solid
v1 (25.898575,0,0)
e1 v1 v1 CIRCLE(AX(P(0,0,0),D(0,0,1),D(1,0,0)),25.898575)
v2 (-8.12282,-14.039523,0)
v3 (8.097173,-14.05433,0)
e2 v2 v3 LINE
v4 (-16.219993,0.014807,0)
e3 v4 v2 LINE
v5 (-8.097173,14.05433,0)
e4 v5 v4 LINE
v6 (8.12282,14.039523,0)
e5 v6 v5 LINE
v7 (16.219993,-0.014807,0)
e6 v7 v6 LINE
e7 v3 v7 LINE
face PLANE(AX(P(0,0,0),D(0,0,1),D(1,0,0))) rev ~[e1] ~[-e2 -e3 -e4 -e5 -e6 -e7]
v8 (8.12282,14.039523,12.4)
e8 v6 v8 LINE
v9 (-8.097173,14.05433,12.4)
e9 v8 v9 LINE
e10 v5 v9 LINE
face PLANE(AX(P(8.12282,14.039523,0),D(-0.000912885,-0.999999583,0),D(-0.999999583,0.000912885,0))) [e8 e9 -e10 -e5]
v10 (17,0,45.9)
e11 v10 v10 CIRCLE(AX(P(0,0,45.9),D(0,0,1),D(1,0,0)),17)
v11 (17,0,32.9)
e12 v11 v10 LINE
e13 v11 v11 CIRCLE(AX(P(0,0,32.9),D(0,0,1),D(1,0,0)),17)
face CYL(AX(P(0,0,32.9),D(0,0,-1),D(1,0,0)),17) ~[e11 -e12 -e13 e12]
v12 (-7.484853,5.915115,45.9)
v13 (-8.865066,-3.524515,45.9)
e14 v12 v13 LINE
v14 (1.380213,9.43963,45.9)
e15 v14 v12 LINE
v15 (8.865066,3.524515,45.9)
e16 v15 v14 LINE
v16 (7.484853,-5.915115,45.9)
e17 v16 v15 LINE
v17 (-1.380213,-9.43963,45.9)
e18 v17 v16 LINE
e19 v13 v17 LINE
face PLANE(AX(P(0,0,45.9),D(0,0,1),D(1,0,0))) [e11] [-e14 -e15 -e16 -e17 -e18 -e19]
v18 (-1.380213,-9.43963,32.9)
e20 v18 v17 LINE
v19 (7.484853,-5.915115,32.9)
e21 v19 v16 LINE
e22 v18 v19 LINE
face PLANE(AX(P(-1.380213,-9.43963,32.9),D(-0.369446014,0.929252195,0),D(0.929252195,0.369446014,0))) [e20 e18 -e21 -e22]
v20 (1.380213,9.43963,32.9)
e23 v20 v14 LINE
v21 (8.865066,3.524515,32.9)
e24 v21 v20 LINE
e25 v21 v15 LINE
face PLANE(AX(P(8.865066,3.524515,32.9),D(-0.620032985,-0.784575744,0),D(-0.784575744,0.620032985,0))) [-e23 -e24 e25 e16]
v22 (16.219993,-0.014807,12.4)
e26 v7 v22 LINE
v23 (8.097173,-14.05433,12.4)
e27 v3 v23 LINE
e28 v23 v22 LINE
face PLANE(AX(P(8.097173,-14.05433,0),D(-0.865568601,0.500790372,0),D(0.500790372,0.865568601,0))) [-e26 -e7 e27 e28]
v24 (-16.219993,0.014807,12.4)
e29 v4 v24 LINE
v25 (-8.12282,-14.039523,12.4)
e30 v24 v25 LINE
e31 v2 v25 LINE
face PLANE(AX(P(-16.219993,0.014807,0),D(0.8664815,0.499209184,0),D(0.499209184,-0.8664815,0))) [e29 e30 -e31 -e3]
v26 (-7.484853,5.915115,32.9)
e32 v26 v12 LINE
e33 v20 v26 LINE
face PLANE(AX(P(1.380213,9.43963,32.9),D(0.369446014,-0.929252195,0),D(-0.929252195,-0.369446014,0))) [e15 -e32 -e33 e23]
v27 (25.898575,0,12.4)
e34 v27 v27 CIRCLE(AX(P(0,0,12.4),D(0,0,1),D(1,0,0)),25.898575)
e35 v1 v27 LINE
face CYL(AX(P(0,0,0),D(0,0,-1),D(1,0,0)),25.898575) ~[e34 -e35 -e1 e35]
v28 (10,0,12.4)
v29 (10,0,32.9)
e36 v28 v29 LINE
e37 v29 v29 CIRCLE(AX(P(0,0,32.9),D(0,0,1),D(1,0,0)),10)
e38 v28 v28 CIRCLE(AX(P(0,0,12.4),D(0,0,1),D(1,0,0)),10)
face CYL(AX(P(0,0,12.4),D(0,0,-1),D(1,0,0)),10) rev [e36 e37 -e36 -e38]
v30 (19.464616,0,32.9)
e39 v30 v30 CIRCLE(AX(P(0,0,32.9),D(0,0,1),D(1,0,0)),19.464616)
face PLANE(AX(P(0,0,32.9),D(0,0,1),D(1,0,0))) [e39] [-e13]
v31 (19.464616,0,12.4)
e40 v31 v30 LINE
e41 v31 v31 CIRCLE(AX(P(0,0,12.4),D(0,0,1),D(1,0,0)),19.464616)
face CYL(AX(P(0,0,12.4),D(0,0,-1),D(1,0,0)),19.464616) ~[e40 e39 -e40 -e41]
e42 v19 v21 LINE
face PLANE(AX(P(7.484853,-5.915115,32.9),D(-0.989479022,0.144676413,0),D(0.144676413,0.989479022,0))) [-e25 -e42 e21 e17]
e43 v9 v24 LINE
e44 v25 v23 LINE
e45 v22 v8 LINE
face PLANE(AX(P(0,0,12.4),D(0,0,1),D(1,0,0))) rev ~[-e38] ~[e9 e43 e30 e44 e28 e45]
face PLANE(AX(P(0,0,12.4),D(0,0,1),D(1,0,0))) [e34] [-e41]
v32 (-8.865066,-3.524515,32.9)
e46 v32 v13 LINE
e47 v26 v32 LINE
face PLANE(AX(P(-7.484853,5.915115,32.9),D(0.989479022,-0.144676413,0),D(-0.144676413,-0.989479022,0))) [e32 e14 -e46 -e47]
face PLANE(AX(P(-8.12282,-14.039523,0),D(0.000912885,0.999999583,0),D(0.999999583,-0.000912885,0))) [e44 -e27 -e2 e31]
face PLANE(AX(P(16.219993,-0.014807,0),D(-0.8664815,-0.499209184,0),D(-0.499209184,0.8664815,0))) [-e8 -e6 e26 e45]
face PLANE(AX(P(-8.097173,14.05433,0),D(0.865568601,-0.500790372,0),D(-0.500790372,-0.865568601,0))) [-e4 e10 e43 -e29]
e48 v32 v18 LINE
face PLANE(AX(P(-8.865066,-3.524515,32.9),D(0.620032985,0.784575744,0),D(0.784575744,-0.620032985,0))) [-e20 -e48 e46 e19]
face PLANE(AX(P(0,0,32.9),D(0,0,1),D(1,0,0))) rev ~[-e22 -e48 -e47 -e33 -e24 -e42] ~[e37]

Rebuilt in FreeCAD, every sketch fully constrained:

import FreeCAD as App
import Part
import Sketcher
from FreeCAD import Vector
Q = App.Units.Quantity


def add_polygon(sketch, points):
    """Adds a closed chain of lines whose ends are joined by coincident constraints."""
    first, n = sketch.GeometryCount, len(points)
    for a, b in zip(points, points[1:] + points[:1]):
        sketch.addGeometry(Part.LineSegment(App.Vector(*a, 0), App.Vector(*b, 0)), False)
    for i in range(n):
        sketch.addConstraint(Sketcher.Constraint("Coincident", first + i, 2, first + (i + 1) % n, 1))

doc = App.newDocument("Part")
body = doc.addObject("PartDesign::Body", "Body")

# Sketch on XY plane
sketch1 = body.newObject("Sketcher::SketchObject", "Sketch")
sketch1.AttachmentSupport = (doc.getObject("XY_Plane"), [""])
sketch1.MapMode = "FlatFace"
sketch1.addGeometry(Part.Circle(Vector(0, 0, 0), Vector(0, 0, 1), 26), False)  # 0
add_polygon(sketch1, [(-8, 14), (8, 14), (16, 0), (8, -14), (-8, -14), (-16, 0)])  # lines 1-6
sketch1.addConstraint([
    Sketcher.Constraint("Coincident", 0, 3, -1, 1),
    Sketcher.Constraint("Symmetric", 1, 2, 4, 2, -1, 1),
    Sketcher.Constraint("Symmetric", 2, 2, 5, 2, -1, 1),
    Sketcher.Constraint("Symmetric", 3, 2, 6, 2, -1, 1),
    Sketcher.Constraint("Equal", 1, 2),
    Sketcher.Constraint("Equal", 2, 3),
    Sketcher.Constraint("Distance", 1, Q("16.22 mm")),
    Sketcher.Constraint("Diameter", 0, Q("51.79715 mm")),
    Sketcher.Constraint("DistanceX", -1, 1, 1, 2, Q("8.12282 mm")),
    Sketcher.Constraint("DistanceY", 3, 2, -1, 1, Q("14.05433 mm")),
    Sketcher.Constraint("DistanceY", 2, 2, 1, 2, Q("14.05433 mm")),
])
pad1 = body.newObject("PartDesign::Pad", "Pad")
pad1.Profile = sketch1
pad1.Length = 12.4

# Sketch on XY plane
sketch2 = body.newObject("Sketcher::SketchObject", "Sketch001")
sketch2.AttachmentSupport = (doc.getObject("XY_Plane"), [""])
sketch2.MapMode = "FlatFace"
sketch2.AttachmentOffset = App.Placement(Vector(0, 0, 12.4), App.Rotation())
sketch2.addGeometry([
    Part.Circle(Vector(0, 0, 0), Vector(0, 0, 1), 19),
    Part.Circle(Vector(0, 0, 0), Vector(0, 0, 1), 10),
], False)
sketch2.addConstraint([
    Sketcher.Constraint("Coincident", 0, 3, -1, 1),
    Sketcher.Constraint("Coincident", 1, 3, -1, 1),
    Sketcher.Constraint("Diameter", 1, Q("20 mm")),
    Sketcher.Constraint("Diameter", 0, Q("38.929232 mm")),
])
pad2 = body.newObject("PartDesign::Pad", "Pad001")
pad2.Profile = sketch2
pad2.Length = 20.5

# Sketch on XY plane
sketch3 = body.newObject("Sketcher::SketchObject", "Sketch002")
sketch3.AttachmentSupport = (doc.getObject("XY_Plane"), [""])
sketch3.MapMode = "FlatFace"
sketch3.AttachmentOffset = App.Placement(Vector(0, 0, 32.9), App.Rotation())
sketch3.addGeometry(Part.Circle(Vector(0, 0, 0), Vector(0, 0, 1), 17), False)  # 0
add_polygon(sketch3, [(-9, -4), (-7, 6), (1, 9), (9, 4), (7, -6), (-1, -9)])  # lines 1-6
sketch3.addConstraint([
    Sketcher.Constraint("Coincident", 0, 3, -1, 1),
    Sketcher.Constraint("Symmetric", 1, 2, 4, 2, -1, 1),
    Sketcher.Constraint("Symmetric", 2, 2, 5, 2, -1, 1),
    Sketcher.Constraint("Symmetric", 3, 2, 6, 2, -1, 1),
    Sketcher.Constraint("Equal", 1, 2),
    Sketcher.Constraint("Equal", 2, 3),
    Sketcher.Constraint("Diameter", 0, Q("34 mm")),
    Sketcher.Constraint("Distance", 1, Q("9.54 mm")),
    Sketcher.Constraint("DistanceY", 3, 2, 1, 2, Q("2.3906 mm")),
    Sketcher.Constraint("DistanceY", -1, 1, 2, 2, Q("9.43963 mm")),
    Sketcher.Constraint("DistanceX", 1, 2, 3, 2, Q("16.349919 mm")),
])
pad3 = body.newObject("PartDesign::Pad", "Pad002")
pad3.Profile = sketch3
pad3.Length = 13

doc.recompute()
